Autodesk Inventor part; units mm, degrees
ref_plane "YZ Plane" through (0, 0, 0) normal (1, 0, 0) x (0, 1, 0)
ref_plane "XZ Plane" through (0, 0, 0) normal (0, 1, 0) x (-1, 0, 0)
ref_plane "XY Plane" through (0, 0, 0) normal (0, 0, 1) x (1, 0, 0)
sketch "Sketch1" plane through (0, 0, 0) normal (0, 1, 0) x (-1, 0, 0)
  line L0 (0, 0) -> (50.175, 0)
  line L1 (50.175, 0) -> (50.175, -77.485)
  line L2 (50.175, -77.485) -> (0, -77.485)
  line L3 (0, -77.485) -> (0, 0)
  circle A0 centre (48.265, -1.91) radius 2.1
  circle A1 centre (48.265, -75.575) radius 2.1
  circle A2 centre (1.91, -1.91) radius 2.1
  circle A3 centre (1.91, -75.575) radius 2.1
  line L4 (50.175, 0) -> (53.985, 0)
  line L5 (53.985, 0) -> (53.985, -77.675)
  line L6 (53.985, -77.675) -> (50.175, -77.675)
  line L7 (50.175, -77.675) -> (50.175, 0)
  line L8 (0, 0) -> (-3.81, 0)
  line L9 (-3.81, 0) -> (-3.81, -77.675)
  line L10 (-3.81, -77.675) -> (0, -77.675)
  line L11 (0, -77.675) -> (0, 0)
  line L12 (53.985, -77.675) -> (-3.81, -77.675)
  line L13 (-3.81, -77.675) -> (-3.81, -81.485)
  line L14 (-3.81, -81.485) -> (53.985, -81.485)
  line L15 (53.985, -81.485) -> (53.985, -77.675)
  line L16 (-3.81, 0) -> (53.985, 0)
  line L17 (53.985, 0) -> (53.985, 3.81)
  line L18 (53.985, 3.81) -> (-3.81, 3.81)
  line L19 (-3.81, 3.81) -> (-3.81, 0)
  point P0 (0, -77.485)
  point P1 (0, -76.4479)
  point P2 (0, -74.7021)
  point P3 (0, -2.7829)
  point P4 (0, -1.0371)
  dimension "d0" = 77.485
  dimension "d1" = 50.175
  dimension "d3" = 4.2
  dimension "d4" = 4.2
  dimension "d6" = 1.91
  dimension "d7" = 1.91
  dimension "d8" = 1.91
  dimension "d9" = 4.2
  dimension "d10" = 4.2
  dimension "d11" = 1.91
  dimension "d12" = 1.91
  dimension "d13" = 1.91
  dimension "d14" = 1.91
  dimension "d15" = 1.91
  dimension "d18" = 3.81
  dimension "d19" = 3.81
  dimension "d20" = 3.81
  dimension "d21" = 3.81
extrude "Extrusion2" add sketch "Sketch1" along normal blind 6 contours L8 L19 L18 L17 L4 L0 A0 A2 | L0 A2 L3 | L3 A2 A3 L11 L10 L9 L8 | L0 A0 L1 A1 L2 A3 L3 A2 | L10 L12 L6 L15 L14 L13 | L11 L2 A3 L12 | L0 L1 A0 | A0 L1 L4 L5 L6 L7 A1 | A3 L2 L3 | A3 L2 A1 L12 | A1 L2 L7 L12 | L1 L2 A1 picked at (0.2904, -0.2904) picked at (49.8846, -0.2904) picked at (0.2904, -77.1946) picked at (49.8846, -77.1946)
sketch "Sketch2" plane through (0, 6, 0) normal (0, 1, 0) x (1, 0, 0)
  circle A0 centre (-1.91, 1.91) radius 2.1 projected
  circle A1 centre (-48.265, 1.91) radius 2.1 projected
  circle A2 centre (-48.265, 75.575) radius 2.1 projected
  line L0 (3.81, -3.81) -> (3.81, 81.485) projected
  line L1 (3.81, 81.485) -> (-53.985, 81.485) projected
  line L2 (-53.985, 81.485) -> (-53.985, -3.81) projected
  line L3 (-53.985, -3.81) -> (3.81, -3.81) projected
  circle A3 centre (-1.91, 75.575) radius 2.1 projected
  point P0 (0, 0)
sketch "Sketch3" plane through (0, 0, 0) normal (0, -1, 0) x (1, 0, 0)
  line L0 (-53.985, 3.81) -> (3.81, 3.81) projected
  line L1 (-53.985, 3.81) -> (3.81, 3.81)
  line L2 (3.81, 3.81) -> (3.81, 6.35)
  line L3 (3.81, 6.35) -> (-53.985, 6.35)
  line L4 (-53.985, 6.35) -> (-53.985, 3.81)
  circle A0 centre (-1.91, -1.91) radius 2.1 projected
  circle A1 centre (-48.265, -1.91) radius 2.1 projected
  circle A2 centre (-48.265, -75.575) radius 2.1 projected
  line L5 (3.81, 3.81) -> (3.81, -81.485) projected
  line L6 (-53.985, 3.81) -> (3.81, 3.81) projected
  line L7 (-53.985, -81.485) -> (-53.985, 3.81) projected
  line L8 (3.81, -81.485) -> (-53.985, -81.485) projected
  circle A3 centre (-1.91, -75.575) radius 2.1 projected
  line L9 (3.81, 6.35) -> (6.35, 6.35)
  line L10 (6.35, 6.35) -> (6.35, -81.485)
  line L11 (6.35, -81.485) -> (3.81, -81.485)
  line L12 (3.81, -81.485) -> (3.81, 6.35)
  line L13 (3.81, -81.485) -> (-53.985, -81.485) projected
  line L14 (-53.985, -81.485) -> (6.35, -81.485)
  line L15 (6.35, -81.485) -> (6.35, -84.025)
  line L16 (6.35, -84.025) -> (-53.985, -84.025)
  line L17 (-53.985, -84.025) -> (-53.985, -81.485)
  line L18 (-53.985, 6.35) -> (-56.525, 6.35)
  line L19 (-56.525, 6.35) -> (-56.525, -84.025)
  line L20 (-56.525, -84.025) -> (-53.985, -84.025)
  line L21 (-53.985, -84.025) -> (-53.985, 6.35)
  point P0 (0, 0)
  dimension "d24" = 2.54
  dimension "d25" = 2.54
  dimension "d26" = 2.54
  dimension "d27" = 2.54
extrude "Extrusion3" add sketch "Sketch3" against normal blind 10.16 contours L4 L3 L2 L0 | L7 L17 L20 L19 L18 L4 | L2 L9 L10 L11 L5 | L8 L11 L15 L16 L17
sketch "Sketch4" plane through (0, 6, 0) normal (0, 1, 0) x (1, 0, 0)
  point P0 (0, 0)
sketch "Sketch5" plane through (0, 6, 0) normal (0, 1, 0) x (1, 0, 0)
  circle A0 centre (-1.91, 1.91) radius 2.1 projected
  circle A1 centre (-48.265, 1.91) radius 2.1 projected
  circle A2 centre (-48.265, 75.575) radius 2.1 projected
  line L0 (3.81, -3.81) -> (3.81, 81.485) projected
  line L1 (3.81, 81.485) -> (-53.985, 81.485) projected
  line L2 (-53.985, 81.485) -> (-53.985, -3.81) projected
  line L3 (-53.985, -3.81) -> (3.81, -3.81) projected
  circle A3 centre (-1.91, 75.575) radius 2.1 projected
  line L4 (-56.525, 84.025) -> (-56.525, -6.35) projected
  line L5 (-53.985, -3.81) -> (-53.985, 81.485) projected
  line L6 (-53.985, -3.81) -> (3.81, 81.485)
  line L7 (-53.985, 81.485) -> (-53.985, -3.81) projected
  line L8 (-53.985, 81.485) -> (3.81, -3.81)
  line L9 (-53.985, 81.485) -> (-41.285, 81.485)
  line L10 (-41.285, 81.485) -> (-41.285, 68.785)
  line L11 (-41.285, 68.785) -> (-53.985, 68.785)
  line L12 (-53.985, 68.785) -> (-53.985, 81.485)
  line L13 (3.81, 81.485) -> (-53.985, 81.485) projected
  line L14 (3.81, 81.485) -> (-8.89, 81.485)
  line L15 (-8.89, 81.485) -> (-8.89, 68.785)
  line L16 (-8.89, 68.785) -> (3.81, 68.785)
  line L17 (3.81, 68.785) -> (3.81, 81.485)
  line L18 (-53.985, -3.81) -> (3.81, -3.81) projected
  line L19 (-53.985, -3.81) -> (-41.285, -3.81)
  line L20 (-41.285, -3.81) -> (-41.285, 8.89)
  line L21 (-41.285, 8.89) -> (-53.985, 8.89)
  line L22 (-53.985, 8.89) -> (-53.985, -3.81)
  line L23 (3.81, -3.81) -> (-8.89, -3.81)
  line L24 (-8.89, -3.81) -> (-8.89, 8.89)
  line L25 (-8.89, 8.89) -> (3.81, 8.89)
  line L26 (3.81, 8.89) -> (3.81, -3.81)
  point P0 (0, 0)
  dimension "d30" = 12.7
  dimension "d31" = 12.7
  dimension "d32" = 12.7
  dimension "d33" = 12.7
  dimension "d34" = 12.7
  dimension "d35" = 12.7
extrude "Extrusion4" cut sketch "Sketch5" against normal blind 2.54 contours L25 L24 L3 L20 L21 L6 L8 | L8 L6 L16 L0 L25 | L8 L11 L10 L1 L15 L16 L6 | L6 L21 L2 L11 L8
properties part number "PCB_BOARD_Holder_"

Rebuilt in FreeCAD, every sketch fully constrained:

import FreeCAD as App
import Part
import Sketcher
from FreeCAD import Vector
Q = App.Units.Quantity

doc = App.newDocument("Part")
body = doc.addObject("PartDesign::Body", "Body")

sketch1 = doc.addObject("Sketcher::SketchObject", "Sketch")
body.addObject(sketch1)
sketch1.AttachmentSupport = (doc.XZ_Plane, [""])
sketch1.MapMode = "FlatFace"
sketch1.addGeometry([
    Part.LineSegment(Vector(3.8, 3.8, 0), Vector(3.8, -81.5, 0)),
    Part.LineSegment(Vector(3.8, -81.5, 0), Vector(-54, -81.5, 0)),
    Part.LineSegment(Vector(-54, -81.5, 0), Vector(-54, 3.8, 0)),
    Part.LineSegment(Vector(-54, 3.8, 0), Vector(3.8, 3.8, 0)),
    Part.Circle(Vector(-48.3, -1.9, 0), Vector(0, 0, 1), 2.1),
    Part.Circle(Vector(-1.9, -1.9, 0), Vector(0, 0, 1), 2.1),
    Part.Circle(Vector(-1.9, -75.6, 0), Vector(0, 0, 1), 2.1),
    Part.Circle(Vector(-48.3, -75.6, 0), Vector(0, 0, 1), 2.1),
], False)
sketch1.addConstraint([
    Sketcher.Constraint("Coincident", 0, 2, 1, 1),
    Sketcher.Constraint("Coincident", 1, 2, 2, 1),
    Sketcher.Constraint("Coincident", 2, 2, 3, 1),
    Sketcher.Constraint("Coincident", 3, 2, 0, 1),
    Sketcher.Constraint("Vertical", 0),
    Sketcher.Constraint("Horizontal", 1),
    Sketcher.Constraint("Vertical", 2),
    Sketcher.Constraint("Horizontal", 3),
    Sketcher.Constraint("Equal", 4, 5),
    Sketcher.Constraint("Equal", 5, 6),
    Sketcher.Constraint("Equal", 6, 7),
    Sketcher.Constraint("Horizontal", 4, 3, 5, 3),
    Sketcher.Constraint("Horizontal", 6, 3, 7, 3),
    Sketcher.Constraint("Vertical", 5, 3, 6, 3),
    Sketcher.Constraint("Vertical", 4, 3, 7, 3),
    Sketcher.Constraint("Diameter", 4, Q("4.2 mm")),
    Sketcher.Constraint("DistanceX", -1, 1, 0, 2, Q("0.15 in")),
    Sketcher.Constraint("DistanceY", -1, 1, 2, 2, Q("0.15 in")),
    Sketcher.Constraint("DistanceY", 4, 3, -1, 1, Q("0.0752 in")),
    Sketcher.Constraint("DistanceX", 5, 3, -1, 1, Q("0.0752 in")),
    Sketcher.Constraint("DistanceX", 1, 2, 1, 1, Q("2.2754 in")),
    Sketcher.Constraint("DistanceX", 4, 3, 5, 3, Q("1.825 in")),
    Sketcher.Constraint("DistanceY", 0, 2, 0, 1, Q("85.295 mm")),
    Sketcher.Constraint("DistanceY", 6, 3, -1, 1, Q("2.9754 in")),
])
pad1 = doc.addObject("PartDesign::Pad", "Pad")
body.addObject(pad1)
pad1.Profile = sketch1
pad1.Length = 6
pad1.Reversed = True

sketch2 = doc.addObject("Sketcher::SketchObject", "Sketch001")
body.addObject(sketch2)
sketch2.AttachmentSupport = (doc.XZ_Plane, [""])
sketch2.MapMode = "FlatFace"
sketch2.addGeometry([
    Part.LineSegment(Vector(-57, 6, 0), Vector(-57, -84, 0)),
    Part.LineSegment(Vector(-57, -84, 0), Vector(6, -84, 0)),
    Part.LineSegment(Vector(6, -84, 0), Vector(6, 6, 0)),
    Part.LineSegment(Vector(6, 6, 0), Vector(-57, 6, 0)),
    Part.LineSegment(Vector(-54, 4, 0), Vector(4, 4, 0)),
    Part.LineSegment(Vector(4, 4, 0), Vector(4, -81, 0)),
    Part.LineSegment(Vector(4, -81, 0), Vector(-54, -81, 0)),
    Part.LineSegment(Vector(-54, -81, 0), Vector(-54, 4, 0)),
], False)
sketch2.addConstraint([
    Sketcher.Constraint("Coincident", 0, 2, 1, 1),
    Sketcher.Constraint("Coincident", 1, 2, 2, 1),
    Sketcher.Constraint("Coincident", 2, 2, 3, 1),
    Sketcher.Constraint("Coincident", 3, 2, 0, 1),
    Sketcher.Constraint("Coincident", 4, 2, 5, 1),
    Sketcher.Constraint("Coincident", 5, 2, 6, 1),
    Sketcher.Constraint("Coincident", 6, 2, 7, 1),
    Sketcher.Constraint("Coincident", 7, 2, 4, 1),
    Sketcher.Constraint("Vertical", 0),
    Sketcher.Constraint("Horizontal", 1),
    Sketcher.Constraint("Vertical", 2),
    Sketcher.Constraint("Horizontal", 3),
    Sketcher.Constraint("Horizontal", 4),
    Sketcher.Constraint("Vertical", 5),
    Sketcher.Constraint("Horizontal", 6),
    Sketcher.Constraint("Vertical", 7),
    Sketcher.Constraint("DistanceX", 4, 2, 2, 2, Q("0.1 in")),
    Sketcher.Constraint("DistanceY", 4, 2, 2, 2, Q("0.1 in")),
    Sketcher.Constraint("DistanceY", 1, 2, 5, 2, Q("0.1 in")),
    Sketcher.Constraint("DistanceX", 0, 2, 6, 2, Q("0.1 in")),
    Sketcher.Constraint("DistanceX", -1, 1, 1, 2, Q("0.25 in")),
    Sketcher.Constraint("DistanceY", -1, 1, 2, 2, Q("0.25 in")),
    Sketcher.Constraint("DistanceX", 1, 1, 1, 2, Q("2.4754 in")),
    Sketcher.Constraint("DistanceY", 0, 2, 0, 1, Q("90.375 mm")),
])
pad2 = doc.addObject("PartDesign::Pad", "Pad001")
body.addObject(pad2)
pad2.Profile = sketch2
pad2.Length = Q("0.4 in")
pad2.Reversed = True

sketch3 = doc.addObject("Sketcher::SketchObject", "Sketch002")
body.addObject(sketch3)
sketch3.AttachmentSupport = (doc.XZ_Plane, [""])
sketch3.MapMode = "FlatFace"
sketch3.AttachmentOffset = App.Placement(Vector(0, 0, -6), App.Rotation())
sketch3.addGeometry([
    Part.LineSegment(Vector(-9, -9, 0), Vector(4, -9, 0)),
    Part.LineSegment(Vector(4, -9, 0), Vector(4, -69, 0)),
    Part.LineSegment(Vector(4, -69, 0), Vector(-9, -69, 0)),
    Part.LineSegment(Vector(-9, -69, 0), Vector(-9, -81, 0)),
    Part.LineSegment(Vector(-9, -81, 0), Vector(-41, -81, 0)),
    Part.LineSegment(Vector(-41, -81, 0), Vector(-41, -69, 0)),
    Part.LineSegment(Vector(-41, -69, 0), Vector(-54, -69, 0)),
    Part.LineSegment(Vector(-54, -69, 0), Vector(-54, -9, 0)),
    Part.LineSegment(Vector(-54, -9, 0), Vector(-41, -9, 0)),
    Part.LineSegment(Vector(-41, -9, 0), Vector(-41, 4, 0)),
    Part.LineSegment(Vector(-41, 4, 0), Vector(-9, 4, 0)),
    Part.LineSegment(Vector(-9, 4, 0), Vector(-9, -9, 0)),
], False)
sketch3.addConstraint([
    Sketcher.Constraint("Coincident", 0, 2, 1, 1),
    Sketcher.Constraint("Coincident", 1, 2, 2, 1),
    Sketcher.Constraint("Coincident", 2, 2, 3, 1),
    Sketcher.Constraint("Coincident", 3, 2, 4, 1),
    Sketcher.Constraint("Coincident", 4, 2, 5, 1),
    Sketcher.Constraint("Coincident", 5, 2, 6, 1),
    Sketcher.Constraint("Coincident", 6, 2, 7, 1),
    Sketcher.Constraint("Coincident", 7, 2, 8, 1),
    Sketcher.Constraint("Coincident", 8, 2, 9, 1),
    Sketcher.Constraint("Coincident", 9, 2, 10, 1),
    Sketcher.Constraint("Coincident", 10, 2, 11, 1),
    Sketcher.Constraint("Coincident", 11, 2, 0, 1),
    Sketcher.Constraint("Horizontal", 0),
    Sketcher.Constraint("Vertical", 1),
    Sketcher.Constraint("Horizontal", 2),
    Sketcher.Constraint("Vertical", 3),
    Sketcher.Constraint("Horizontal", 4),
    Sketcher.Constraint("Vertical", 5),
    Sketcher.Constraint("Horizontal", 6),
    Sketcher.Constraint("Vertical", 7),
    Sketcher.Constraint("Horizontal", 8),
    Sketcher.Constraint("Vertical", 9),
    Sketcher.Constraint("Horizontal", 10),
    Sketcher.Constraint("Vertical", 11),
    Sketcher.Constraint("Horizontal", 2, 2, 5, 2),
    Sketcher.Constraint("Horizontal", 0, 2, 7, 2),
    Sketcher.Constraint("Vertical", 5, 2, 8, 2),
    Sketcher.Constraint("Vertical", 3, 2, 10, 2),
    Sketcher.Constraint("Equal", 2, 6),
    Sketcher.Constraint("Equal", 8, 3),
    Sketcher.Constraint("Equal", 5, 9),
    Sketcher.Constraint("DistanceX", 0, 1, 0, 2, Q("0.5 in")),
    Sketcher.Constraint("DistanceX", -1, 1, 0, 2, Q("0.15 in")),
    Sketcher.Constraint("DistanceY", 0, 2, -1, 1, Q("0.35 in")),
    Sketcher.Constraint("DistanceX", 4, 2, 4, 1, Q("1.2754 in")),
    Sketcher.Constraint("DistanceY", 1, 2, 1, 1, Q("59.895 mm")),
])
pocket1 = doc.addObject("PartDesign::Pocket", "Pocket")
body.addObject(pocket1)
pocket1.Profile = sketch3
pocket1.Length = Q("0.1 in")
pocket1.Reversed = True

doc.recompute()
